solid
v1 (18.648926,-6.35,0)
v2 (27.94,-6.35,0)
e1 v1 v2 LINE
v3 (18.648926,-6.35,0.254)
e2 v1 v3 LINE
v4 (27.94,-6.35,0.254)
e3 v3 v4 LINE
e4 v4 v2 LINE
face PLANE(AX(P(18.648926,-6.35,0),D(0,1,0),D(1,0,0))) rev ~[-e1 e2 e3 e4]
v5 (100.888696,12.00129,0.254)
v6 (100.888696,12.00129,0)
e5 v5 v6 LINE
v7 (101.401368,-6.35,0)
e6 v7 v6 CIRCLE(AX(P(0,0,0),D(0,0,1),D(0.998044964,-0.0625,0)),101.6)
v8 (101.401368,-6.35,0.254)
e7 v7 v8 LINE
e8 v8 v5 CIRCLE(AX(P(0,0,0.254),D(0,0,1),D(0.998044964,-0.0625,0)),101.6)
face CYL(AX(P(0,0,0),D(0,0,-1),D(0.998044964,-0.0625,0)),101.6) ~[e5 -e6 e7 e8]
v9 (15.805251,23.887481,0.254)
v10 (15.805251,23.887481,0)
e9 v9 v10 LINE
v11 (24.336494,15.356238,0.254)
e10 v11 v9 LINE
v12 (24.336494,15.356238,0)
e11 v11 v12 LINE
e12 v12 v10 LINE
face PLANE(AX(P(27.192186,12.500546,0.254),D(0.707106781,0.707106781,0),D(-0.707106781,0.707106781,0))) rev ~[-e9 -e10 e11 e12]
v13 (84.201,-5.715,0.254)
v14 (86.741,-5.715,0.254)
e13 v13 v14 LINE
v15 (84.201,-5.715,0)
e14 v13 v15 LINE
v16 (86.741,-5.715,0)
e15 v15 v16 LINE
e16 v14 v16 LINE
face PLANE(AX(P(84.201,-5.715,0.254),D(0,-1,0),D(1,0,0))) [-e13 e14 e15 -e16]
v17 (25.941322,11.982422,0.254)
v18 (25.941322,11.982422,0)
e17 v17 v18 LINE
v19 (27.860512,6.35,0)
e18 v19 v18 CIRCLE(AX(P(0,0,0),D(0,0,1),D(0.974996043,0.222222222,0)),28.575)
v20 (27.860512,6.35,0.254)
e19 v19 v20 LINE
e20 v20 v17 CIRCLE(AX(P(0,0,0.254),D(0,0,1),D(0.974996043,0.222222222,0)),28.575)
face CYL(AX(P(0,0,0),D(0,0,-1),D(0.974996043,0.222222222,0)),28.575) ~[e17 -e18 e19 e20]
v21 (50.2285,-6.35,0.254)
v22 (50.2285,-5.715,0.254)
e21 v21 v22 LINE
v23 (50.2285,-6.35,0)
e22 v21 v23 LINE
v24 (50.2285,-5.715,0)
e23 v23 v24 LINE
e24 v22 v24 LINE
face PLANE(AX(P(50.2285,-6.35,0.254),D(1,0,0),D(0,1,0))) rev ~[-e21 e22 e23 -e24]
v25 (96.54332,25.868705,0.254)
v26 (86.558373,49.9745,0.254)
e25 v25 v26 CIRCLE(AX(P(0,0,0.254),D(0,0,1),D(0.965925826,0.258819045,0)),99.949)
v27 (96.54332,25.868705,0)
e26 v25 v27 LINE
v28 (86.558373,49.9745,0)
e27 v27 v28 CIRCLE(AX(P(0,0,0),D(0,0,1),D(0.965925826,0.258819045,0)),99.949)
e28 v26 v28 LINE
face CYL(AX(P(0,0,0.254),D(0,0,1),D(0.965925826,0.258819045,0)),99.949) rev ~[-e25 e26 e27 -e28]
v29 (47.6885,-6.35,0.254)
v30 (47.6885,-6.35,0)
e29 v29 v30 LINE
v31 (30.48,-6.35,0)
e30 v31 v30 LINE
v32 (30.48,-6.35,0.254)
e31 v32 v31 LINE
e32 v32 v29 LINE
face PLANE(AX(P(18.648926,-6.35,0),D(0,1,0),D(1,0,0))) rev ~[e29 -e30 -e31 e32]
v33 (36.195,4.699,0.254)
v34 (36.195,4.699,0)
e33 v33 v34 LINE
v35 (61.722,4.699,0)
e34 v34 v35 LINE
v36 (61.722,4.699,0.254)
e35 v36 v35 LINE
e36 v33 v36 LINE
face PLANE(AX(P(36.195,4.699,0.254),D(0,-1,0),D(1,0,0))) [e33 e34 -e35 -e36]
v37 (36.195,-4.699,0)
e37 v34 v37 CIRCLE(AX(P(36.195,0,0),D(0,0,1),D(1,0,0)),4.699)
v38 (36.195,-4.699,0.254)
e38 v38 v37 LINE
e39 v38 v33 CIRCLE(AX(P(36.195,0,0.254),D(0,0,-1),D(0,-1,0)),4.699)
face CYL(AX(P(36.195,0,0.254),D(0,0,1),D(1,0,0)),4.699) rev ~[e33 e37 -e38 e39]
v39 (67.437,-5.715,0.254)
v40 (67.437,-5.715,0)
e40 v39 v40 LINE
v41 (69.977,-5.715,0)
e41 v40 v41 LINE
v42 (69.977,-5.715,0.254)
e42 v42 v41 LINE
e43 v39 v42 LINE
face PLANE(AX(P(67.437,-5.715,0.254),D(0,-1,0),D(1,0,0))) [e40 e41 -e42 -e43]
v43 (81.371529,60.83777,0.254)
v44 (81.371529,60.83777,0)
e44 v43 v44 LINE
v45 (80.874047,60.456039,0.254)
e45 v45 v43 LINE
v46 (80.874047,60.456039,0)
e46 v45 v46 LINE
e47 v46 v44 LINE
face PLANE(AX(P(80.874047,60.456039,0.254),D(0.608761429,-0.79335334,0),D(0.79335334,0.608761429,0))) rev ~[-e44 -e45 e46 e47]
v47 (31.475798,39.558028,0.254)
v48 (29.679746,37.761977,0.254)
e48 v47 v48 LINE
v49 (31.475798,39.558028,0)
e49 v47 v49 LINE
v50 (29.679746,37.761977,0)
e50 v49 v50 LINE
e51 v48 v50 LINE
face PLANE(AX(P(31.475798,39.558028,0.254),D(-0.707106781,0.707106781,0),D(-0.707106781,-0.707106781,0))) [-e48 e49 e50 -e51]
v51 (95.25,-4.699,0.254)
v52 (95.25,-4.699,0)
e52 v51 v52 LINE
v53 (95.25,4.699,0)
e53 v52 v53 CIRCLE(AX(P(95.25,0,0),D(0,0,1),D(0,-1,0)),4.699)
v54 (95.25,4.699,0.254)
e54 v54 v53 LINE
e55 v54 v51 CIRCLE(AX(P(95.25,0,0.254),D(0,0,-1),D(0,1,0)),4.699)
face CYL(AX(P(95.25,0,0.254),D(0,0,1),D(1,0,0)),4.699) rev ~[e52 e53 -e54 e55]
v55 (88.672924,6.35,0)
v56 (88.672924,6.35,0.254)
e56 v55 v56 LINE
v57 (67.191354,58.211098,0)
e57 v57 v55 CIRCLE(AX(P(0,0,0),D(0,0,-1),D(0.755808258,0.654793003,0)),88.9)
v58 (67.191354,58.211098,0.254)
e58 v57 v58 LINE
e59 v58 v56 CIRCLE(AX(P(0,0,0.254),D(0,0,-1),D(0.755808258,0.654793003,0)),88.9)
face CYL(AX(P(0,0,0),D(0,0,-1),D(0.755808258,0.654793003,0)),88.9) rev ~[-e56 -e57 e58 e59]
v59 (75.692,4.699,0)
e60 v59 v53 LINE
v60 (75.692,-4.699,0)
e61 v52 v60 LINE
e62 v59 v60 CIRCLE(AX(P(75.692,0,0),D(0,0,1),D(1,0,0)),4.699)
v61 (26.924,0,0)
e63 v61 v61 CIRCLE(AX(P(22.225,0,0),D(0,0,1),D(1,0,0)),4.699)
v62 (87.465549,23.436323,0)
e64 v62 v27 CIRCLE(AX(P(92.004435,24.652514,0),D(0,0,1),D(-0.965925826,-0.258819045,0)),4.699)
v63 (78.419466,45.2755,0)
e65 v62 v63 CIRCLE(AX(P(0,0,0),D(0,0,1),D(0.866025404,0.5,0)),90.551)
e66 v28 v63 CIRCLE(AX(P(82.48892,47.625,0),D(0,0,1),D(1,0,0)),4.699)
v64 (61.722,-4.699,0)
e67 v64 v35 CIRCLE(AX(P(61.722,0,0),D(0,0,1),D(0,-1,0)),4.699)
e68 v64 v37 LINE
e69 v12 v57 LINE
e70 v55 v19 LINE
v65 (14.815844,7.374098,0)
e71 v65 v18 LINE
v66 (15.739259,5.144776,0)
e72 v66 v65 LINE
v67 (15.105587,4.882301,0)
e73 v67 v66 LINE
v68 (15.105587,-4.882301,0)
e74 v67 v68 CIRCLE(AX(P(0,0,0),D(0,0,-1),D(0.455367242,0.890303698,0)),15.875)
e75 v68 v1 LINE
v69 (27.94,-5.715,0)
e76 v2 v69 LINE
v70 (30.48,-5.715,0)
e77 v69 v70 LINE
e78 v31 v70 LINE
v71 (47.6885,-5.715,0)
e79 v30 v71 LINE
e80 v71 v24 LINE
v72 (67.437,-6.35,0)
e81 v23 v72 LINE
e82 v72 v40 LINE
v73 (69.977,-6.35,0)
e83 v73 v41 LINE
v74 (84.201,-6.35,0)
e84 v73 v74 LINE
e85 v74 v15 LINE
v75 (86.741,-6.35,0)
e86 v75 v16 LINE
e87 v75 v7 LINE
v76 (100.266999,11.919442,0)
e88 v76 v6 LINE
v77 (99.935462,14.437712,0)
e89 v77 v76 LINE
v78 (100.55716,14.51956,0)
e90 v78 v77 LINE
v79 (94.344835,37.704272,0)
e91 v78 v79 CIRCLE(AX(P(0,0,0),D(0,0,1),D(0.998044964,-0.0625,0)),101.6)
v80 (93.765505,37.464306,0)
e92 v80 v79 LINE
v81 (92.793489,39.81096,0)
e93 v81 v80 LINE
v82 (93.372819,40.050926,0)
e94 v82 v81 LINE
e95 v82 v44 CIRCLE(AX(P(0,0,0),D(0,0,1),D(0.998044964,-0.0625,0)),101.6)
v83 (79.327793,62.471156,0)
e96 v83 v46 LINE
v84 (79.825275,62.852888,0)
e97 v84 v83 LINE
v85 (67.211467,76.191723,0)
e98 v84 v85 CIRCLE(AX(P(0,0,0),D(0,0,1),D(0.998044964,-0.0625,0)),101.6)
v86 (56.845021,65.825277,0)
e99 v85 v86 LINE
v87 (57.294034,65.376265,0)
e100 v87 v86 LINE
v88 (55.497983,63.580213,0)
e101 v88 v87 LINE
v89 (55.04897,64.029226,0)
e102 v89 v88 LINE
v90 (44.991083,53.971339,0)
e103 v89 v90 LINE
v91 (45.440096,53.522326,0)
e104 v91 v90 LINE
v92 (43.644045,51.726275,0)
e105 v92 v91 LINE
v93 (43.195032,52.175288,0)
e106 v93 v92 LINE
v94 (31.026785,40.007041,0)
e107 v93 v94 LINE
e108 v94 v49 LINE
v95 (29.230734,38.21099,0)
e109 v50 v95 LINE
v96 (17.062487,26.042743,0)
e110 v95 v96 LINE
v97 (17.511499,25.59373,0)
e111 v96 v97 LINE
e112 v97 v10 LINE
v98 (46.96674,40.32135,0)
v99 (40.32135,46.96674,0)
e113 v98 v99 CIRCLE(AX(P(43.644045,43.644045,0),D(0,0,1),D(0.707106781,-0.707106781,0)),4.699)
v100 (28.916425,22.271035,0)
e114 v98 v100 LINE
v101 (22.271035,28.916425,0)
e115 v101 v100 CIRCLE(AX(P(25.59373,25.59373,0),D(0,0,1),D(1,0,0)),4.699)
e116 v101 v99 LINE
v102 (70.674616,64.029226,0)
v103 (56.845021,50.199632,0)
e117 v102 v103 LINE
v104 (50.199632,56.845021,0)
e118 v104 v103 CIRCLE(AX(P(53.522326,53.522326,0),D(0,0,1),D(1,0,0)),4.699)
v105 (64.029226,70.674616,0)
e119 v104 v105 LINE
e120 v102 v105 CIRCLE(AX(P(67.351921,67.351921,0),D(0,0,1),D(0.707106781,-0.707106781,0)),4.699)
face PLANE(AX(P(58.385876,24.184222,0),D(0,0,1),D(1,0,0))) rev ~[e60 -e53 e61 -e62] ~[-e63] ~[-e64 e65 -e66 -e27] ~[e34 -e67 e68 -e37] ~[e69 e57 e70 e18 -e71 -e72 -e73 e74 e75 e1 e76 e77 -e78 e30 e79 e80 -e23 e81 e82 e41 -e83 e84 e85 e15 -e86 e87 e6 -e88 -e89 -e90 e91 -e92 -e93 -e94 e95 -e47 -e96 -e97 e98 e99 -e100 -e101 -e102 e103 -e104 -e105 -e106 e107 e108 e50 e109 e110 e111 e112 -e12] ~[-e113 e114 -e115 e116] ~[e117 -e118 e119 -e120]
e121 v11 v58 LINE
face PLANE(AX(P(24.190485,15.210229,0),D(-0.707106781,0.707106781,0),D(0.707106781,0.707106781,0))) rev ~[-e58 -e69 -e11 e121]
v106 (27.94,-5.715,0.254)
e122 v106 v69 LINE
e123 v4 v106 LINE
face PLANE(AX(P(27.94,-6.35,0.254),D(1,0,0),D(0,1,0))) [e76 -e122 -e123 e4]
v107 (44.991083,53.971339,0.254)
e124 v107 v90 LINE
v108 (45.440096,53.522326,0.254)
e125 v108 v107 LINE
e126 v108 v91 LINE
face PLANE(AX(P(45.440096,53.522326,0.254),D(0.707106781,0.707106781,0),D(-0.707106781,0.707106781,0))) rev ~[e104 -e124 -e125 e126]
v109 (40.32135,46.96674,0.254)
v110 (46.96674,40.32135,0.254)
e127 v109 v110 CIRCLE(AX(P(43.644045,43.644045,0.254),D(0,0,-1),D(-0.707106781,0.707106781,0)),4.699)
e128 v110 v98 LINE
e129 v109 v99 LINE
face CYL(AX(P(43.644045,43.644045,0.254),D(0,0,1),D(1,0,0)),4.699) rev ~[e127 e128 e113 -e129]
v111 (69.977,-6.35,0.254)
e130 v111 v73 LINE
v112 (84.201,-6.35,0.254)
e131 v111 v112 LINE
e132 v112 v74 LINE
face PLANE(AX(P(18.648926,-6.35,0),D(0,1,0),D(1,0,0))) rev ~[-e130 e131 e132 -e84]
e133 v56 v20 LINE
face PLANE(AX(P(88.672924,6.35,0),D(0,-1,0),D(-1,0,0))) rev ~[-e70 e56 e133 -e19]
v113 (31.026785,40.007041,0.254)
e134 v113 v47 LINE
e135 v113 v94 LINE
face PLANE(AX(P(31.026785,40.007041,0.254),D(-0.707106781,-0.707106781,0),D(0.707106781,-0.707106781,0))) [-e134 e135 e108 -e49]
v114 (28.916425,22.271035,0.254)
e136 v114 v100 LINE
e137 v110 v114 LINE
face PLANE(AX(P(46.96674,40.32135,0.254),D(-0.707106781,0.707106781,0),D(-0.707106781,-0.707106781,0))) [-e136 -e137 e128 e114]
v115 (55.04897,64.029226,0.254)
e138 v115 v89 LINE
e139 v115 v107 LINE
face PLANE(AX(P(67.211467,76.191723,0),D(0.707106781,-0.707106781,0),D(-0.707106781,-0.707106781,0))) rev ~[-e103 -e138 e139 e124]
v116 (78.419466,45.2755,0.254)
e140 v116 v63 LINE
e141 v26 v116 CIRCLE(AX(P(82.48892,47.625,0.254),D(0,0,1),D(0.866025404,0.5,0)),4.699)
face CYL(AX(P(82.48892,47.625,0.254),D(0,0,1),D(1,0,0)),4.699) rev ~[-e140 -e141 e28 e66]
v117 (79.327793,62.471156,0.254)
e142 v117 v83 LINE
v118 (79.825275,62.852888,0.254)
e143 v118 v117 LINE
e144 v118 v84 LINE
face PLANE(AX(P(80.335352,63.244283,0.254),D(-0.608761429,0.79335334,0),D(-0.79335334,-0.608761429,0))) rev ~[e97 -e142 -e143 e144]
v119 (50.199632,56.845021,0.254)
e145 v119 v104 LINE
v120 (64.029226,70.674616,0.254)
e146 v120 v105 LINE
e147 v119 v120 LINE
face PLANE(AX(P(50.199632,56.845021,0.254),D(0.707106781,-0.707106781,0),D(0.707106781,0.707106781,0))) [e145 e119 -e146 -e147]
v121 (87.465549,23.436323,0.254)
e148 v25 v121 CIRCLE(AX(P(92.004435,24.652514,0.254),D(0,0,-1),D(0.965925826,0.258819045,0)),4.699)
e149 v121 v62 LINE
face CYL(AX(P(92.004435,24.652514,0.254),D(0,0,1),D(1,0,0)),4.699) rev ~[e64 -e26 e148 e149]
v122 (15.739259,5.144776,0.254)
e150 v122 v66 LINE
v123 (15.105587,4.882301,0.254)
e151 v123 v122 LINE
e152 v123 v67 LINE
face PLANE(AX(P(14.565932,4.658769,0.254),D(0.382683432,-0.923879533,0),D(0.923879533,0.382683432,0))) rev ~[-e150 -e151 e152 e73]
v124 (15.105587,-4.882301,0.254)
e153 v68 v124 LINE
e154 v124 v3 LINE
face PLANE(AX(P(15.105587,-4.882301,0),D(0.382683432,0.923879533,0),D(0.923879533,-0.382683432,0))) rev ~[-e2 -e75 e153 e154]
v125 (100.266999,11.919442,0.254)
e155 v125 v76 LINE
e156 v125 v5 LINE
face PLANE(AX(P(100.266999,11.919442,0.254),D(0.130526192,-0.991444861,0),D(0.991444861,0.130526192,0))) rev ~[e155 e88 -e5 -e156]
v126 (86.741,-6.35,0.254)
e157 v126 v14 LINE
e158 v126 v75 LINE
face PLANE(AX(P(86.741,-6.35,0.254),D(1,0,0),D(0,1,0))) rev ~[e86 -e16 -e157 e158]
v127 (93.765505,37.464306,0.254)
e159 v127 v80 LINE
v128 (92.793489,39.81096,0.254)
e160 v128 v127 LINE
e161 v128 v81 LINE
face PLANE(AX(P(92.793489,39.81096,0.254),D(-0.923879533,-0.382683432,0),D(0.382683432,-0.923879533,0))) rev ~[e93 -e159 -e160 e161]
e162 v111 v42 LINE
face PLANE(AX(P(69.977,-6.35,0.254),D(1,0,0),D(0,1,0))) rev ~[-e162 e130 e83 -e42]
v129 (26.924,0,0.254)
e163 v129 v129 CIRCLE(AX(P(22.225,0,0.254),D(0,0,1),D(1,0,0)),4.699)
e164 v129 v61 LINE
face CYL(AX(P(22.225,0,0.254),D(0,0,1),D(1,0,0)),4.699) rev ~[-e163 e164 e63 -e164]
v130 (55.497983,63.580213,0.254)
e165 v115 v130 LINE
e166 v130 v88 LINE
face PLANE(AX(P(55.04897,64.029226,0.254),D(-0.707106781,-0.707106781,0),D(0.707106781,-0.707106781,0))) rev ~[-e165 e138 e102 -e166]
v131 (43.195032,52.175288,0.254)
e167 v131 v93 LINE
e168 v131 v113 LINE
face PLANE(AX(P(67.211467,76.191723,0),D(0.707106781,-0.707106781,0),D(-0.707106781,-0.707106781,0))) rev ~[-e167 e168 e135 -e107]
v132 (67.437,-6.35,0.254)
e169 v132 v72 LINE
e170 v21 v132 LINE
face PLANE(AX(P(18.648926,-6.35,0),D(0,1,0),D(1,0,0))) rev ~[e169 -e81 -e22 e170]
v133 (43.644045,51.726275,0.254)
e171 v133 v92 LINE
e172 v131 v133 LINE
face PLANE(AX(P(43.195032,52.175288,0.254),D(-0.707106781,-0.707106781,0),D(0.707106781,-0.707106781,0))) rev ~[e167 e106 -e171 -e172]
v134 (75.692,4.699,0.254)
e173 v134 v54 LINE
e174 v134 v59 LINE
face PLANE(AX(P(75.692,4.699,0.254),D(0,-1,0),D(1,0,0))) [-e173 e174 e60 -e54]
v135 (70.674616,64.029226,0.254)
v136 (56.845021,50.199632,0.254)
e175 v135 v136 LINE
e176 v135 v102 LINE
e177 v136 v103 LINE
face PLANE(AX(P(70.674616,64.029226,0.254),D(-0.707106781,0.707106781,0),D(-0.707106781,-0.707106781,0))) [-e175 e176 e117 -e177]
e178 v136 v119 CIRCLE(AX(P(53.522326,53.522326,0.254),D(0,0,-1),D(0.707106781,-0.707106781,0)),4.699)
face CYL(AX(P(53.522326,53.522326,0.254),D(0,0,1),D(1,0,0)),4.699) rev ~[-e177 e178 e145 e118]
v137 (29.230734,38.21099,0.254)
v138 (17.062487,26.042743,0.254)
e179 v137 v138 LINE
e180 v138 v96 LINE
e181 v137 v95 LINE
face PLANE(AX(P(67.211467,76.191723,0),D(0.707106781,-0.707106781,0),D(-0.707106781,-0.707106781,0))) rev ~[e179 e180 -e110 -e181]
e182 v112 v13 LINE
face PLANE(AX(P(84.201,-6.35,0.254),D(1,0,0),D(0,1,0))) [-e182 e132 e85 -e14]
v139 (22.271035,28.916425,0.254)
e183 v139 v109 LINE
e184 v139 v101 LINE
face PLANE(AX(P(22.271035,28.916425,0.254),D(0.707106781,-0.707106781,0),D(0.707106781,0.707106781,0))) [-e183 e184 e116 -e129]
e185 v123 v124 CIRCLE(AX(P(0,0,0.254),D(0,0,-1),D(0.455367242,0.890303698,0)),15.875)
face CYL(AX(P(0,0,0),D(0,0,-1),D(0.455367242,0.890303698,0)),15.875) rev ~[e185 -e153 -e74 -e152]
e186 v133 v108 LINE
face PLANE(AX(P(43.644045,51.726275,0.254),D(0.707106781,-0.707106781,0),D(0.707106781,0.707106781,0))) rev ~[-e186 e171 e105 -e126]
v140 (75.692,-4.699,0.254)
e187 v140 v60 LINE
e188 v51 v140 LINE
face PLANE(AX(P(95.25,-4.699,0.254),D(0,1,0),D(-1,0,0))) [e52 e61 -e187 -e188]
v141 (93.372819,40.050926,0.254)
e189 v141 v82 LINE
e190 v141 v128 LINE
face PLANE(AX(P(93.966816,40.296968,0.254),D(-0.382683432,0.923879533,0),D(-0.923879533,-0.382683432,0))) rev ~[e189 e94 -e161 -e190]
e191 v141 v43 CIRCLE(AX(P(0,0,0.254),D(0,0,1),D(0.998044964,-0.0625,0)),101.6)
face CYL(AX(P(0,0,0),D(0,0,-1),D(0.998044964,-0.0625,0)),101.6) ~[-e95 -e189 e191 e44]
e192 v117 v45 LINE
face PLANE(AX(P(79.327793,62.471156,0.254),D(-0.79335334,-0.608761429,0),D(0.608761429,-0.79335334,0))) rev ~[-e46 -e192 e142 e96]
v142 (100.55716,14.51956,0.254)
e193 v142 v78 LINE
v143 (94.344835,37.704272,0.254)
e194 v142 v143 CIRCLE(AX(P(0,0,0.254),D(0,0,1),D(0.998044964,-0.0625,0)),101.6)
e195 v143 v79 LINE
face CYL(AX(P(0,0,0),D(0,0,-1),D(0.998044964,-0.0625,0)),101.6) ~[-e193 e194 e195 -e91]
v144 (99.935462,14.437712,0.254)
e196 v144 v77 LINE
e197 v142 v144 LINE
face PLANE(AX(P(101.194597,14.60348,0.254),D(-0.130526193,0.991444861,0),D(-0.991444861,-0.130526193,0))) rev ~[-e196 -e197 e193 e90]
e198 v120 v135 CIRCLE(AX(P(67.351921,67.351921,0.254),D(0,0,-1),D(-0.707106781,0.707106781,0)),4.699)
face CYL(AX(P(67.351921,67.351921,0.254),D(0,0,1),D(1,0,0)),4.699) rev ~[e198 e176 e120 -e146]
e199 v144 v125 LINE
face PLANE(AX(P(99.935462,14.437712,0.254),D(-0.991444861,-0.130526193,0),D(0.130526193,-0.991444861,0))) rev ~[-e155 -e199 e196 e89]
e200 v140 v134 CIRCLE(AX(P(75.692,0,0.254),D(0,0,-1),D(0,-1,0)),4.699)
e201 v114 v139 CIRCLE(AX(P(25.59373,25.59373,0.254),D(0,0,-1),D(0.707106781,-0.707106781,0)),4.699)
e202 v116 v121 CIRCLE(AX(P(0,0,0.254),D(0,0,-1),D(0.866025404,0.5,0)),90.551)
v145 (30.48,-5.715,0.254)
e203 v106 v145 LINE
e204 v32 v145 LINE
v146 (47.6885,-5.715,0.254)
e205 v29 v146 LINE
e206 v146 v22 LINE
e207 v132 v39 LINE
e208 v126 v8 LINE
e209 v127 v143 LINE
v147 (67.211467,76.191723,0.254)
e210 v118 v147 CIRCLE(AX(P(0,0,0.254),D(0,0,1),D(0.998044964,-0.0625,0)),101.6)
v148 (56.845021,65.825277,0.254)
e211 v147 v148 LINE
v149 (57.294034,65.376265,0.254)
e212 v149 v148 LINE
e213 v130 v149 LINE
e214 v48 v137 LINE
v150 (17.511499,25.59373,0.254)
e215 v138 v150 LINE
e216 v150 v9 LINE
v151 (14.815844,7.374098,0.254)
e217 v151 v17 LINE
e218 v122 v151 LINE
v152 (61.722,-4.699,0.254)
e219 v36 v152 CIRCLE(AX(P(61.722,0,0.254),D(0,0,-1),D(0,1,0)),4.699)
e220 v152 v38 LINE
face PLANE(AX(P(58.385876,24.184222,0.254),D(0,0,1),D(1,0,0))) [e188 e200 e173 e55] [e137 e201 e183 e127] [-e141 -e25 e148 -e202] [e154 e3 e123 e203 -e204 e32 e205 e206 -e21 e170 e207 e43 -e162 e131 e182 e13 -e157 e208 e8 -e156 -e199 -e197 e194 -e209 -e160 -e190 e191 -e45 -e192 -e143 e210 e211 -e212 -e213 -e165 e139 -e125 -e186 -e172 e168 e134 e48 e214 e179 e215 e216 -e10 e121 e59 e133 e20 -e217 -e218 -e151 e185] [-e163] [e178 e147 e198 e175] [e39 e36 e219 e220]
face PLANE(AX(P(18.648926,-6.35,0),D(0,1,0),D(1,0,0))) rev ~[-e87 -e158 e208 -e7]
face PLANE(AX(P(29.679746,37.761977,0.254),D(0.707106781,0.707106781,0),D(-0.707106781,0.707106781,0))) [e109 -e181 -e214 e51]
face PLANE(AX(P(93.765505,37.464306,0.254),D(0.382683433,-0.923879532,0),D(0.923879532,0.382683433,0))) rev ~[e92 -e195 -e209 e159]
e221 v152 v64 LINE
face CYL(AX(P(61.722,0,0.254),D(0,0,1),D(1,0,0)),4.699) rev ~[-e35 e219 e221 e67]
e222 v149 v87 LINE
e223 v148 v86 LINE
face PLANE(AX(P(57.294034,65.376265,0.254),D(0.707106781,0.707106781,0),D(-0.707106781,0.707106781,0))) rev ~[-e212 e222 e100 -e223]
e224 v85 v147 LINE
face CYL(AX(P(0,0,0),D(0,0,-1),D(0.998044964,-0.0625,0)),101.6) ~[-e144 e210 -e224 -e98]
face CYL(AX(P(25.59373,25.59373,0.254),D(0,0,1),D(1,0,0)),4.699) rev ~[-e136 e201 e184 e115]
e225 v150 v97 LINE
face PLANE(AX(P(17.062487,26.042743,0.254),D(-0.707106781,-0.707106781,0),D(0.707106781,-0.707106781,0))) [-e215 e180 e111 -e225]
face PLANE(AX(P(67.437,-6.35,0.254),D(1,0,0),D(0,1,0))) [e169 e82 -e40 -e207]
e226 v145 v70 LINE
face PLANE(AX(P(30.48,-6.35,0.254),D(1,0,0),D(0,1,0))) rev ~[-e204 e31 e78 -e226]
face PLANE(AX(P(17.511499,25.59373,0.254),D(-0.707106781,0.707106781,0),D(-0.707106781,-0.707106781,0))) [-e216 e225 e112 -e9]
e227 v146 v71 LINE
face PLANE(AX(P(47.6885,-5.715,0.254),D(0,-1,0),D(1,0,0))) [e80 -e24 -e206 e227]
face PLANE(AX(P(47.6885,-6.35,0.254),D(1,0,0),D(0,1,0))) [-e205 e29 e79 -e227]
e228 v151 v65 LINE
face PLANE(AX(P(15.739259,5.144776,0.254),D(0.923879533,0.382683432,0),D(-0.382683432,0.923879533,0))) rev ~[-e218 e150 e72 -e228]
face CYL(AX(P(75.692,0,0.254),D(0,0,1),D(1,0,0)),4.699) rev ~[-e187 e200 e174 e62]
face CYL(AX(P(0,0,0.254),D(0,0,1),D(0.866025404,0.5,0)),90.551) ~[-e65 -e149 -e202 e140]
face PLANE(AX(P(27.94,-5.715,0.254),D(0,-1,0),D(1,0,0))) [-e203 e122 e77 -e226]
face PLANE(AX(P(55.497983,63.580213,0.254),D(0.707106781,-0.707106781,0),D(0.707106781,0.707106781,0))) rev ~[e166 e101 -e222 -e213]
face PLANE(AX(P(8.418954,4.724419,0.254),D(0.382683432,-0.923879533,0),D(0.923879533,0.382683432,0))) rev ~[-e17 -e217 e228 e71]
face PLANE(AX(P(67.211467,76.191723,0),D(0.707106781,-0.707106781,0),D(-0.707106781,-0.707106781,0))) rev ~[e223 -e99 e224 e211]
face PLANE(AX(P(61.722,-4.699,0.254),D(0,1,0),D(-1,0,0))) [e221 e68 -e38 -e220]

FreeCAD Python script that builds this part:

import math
import FreeCAD as App
import Part
import Sketcher
from FreeCAD import Vector
Q = App.Units.Quantity


def add_polygon(sketch, points):
    """Adds a closed chain of lines whose ends are joined by coincident constraints."""
    first, n = sketch.GeometryCount, len(points)
    for a, b in zip(points, points[1:] + points[:1]):
        sketch.addGeometry(Part.LineSegment(App.Vector(*a, 0), App.Vector(*b, 0)), False)
    for i in range(n):
        sketch.addConstraint(Sketcher.Constraint("Coincident", first + i, 2, first + (i + 1) % n, 1))

doc = App.newDocument("Part")
params = doc.addObject("Spreadsheet::Sheet", "Params")
for row, (alias, value) in enumerate([
    ("sketch1_radius", "4 in"),
    ("sketch1_radius2", "3.5 in"),
    ("sketch1_radius3", "0.625 in"),
    ("sketch1_radius4", "1.125 in"),
    ("pad1_length", "0.01 in"),
    ("sketch2_diameter", "0.37 in"),
    ("sketch3_width", "0.1 in"),
    ("sketch3_length", "0.1 in"),
    ("sketch3_length2", "0.05 in"),
    ("sketch3_height", "0.025 in"),
    ("sketch3_length3", "0.025 in"),
    ("sketch4_radius", "0.185 in"),
    ("sketch4_radius2", "3.935 in"),
    ("sketch4_width", "0.77 in"),
    ("sketch4_length", "0.77 in"),
    ("sketch4_width2", "1.005 in"),
    ("sketch5_length", "0.8 in"),
], start=1):
    params.set(f"A{row}", alias)
    params.set(f"B{row}", "=" + value)
    params.setAlias(f"B{row}", alias)

body = doc.addObject("PartDesign::Body", "Body")

# Sketch on XY plane
sketch1 = body.newObject("Sketcher::SketchObject", "Sketch")
sketch1.AttachmentSupport = (doc.getObject("XY_Plane"), [""])
sketch1.MapMode = "FlatFace"
sketch1.addGeometry([
    Part.LineSegment(Vector(67.211467, 76.191723, 0), Vector(8.696654, 17.67691, 0)),  # 0
    Part.LineSegment(Vector(8.696654, 17.67691, 0), Vector(7.228955, 14.133571, 0)),  # 1
    Part.ArcOfCircle(Part.Circle(Vector(0, 0, 0), Vector(0, 0, 1), 15.875), math.radians(-17.911434), math.radians(62.911434)),  # 2
    Part.LineSegment(Vector(15.105587, -4.882301, 0), Vector(18.648926, -6.35, 0)),  # 3
    Part.LineSegment(Vector(18.648926, -6.35, 0), Vector(101.401368, -6.35, 0)),  # 4
    Part.ArcOfCircle(Part.Circle(Vector(0, 0, 0), Vector(0, 0, 1), 101.6), math.radians(-3.583322), math.radians(48.583322)),  # 5
    Part.ArcOfCircle(Part.Circle(Vector(0, 0, 0), Vector(0, 0, 1), 88.9), math.radians(4.096044), math.radians(40.903956)),  # 6
    Part.LineSegment(Vector(88.672924, 6.35, 0), Vector(27.860512, 6.35, 0)),  # 7
    Part.ArcOfCircle(Part.Circle(Vector(0, 0, 0), Vector(0, 0, 1), 28.575), math.radians(12.839588), math.radians(32.160412)),  # 8
    Part.LineSegment(Vector(24.190485, 15.210229, 0), Vector(67.191354, 58.211098, 0)),  # 9
], False)
sketch1.addConstraint([
    Sketcher.Constraint("Coincident", 0, 2, 1, 1),
    Sketcher.Constraint("Coincident", 1, 2, 2, 2),
    Sketcher.Constraint("Coincident", 2, 1, 3, 1),
    Sketcher.Constraint("Coincident", 3, 2, 4, 1),
    Sketcher.Constraint("Coincident", 4, 2, 5, 1),
    Sketcher.Constraint("Coincident", 5, 2, 0, 1),
    Sketcher.Constraint("Coincident", 6, 1, 7, 1),
    Sketcher.Constraint("Coincident", 7, 2, 8, 1),
    Sketcher.Constraint("Coincident", 8, 2, 9, 1),
    Sketcher.Constraint("Coincident", 9, 2, 6, 2),
    Sketcher.Constraint("Horizontal", 4),
    Sketcher.Constraint("Horizontal", 7),
    Sketcher.Constraint("Coincident", 2, 3, -1, 1),
    Sketcher.Constraint("Coincident", 5, 3, -1, 1),
    Sketcher.Constraint("Coincident", 6, 3, -1, 1),
    Sketcher.Constraint("Coincident", 8, 3, -1, 1),
    Sketcher.Constraint("Perpendicular", 1, 3),
    Sketcher.Constraint("Parallel", 0, 9),
    Sketcher.Constraint("Equal", 1, 3),
    Sketcher.Constraint("Radius", 5, Q("4 in")),
    Sketcher.Constraint("Radius", 6, Q("3.5 in")),
    Sketcher.Constraint("Angle", 0, Q("-135 deg")),
    Sketcher.Constraint("Radius", 2, Q("0.625 in")),
    Sketcher.Constraint("Radius", 8, Q("1.125 in")),
    Sketcher.Constraint("Angle", 1, Q("-112.5 deg")),
    Sketcher.Constraint("DistanceY", 4, 2, 6, 1, Q("0.5 in")),
    Sketcher.Constraint("DistanceY", 3, 2, -1, 1, Q("0.25 in")),
    Sketcher.Constraint("DistanceY", 2, 1, -1, 1, Q("4.882301 mm")),
    Sketcher.Constraint("DistanceY", -1, 1, 9, 2, Q("58.211098 mm")),
    Sketcher.Constraint("DistanceX", 5, 2, 4, 2, Q("34.189901 mm")),
])
sketch1.setExpression("Constraints[19]", "Params.sketch1_radius")
sketch1.setExpression("Constraints[20]", "Params.sketch1_radius2")
sketch1.setExpression("Constraints[22]", "Params.sketch1_radius3")
sketch1.setExpression("Constraints[23]", "Params.sketch1_radius4")
pad1 = body.newObject("PartDesign::Pad", "Pad")
pad1.Profile = sketch1
pad1.setExpression("Length", "Params.pad1_length")

# Sketch on XY plane
sketch2 = body.newObject("Sketcher::SketchObject", "Sketch001")
sketch2.AttachmentSupport = (doc.getObject("XY_Plane"), [""])
sketch2.MapMode = "FlatFace"
sketch2.AttachmentOffset = App.Placement(Vector(0, 0, 0.01 * 25.4), App.Rotation())
sketch2.addGeometry([
    Part.Circle(Vector(22.225, 0, 0), Vector(0, 0, 1), 4.699),  # 0
    Part.Circle(Vector(36.195, 0, 0), Vector(0, 0, 1), 4.699),  # 1
    Part.Circle(Vector(61.722, 0, 0), Vector(0, 0, 1), 4.699),  # 2
    Part.Circle(Vector(75.692, 0, 0), Vector(0, 0, 1), 4.699),  # 3
    Part.Circle(Vector(95.25, 0, 0), Vector(0, 0, 1), 4.699),  # 4
    Part.Circle(Vector(15.715448, 15.715448, 0), Vector(0, 0, 1), 4.699),  # 5
    Part.Circle(Vector(25.59373, 25.59373, 0), Vector(0, 0, 1), 4.699),  # 6
    Part.Circle(Vector(43.644045, 43.644045, 0), Vector(0, 0, 1), 4.699),  # 7
    Part.Circle(Vector(53.522326, 53.522326, 0), Vector(0, 0, 1), 4.699),  # 8
    Part.Circle(Vector(92.004435, 24.652514, 0), Vector(0, 0, 1), 4.699),  # 9
    Part.Circle(Vector(82.48892, 47.625, 0), Vector(0, 0, 1), 4.699),  # 10
    Part.Circle(Vector(67.351921, 67.351921, 0), Vector(0, 0, 1), 4.699),  # 11
], False)
sketch2.addConstraint([
    Sketcher.Constraint("Equal", 0, 1),
    Sketcher.Constraint("Equal", 1, 2),
    Sketcher.Constraint("Equal", 2, 3),
    Sketcher.Constraint("Equal", 3, 4),
    Sketcher.Constraint("Equal", 4, 5),
    Sketcher.Constraint("Equal", 5, 6),
    Sketcher.Constraint("Equal", 6, 7),
    Sketcher.Constraint("Equal", 7, 8),
    Sketcher.Constraint("Equal", 8, 9),
    Sketcher.Constraint("Equal", 9, 10),
    Sketcher.Constraint("Equal", 10, 11),
    Sketcher.Constraint("PointOnObject", 0, 3, -1),
    Sketcher.Constraint("PointOnObject", 1, 3, -1),
    Sketcher.Constraint("PointOnObject", 2, 3, -1),
    Sketcher.Constraint("PointOnObject", 3, 3, -1),
    Sketcher.Constraint("PointOnObject", 4, 3, -1),
    Sketcher.Constraint("Diameter", 0, Q("0.37 in")),
    Sketcher.Constraint("DistanceX", -1, 1, 2, 3, Q("2.43 in")),
    Sketcher.Constraint("DistanceX", -1, 1, 3, 3, Q("2.98 in")),
    Sketcher.Constraint("DistanceX", -1, 1, 4, 3, Q("3.75 in")),
    Sketcher.Constraint("DistanceX", 0, 3, 1, 3, Q("0.55 in")),
    Sketcher.Constraint("DistanceX", -1, 1, 0, 3, Q("0.875 in")),
    Sketcher.Constraint("DistanceY", -1, 1, 10, 3, Q("1.875 in")),
    Sketcher.Constraint("DistanceX", 11, 3, 10, 3, Q("15.136999 mm")),
    Sketcher.Constraint("DistanceX", -1, 1, 5, 3, Q("15.715448 mm")),
    Sketcher.Constraint("DistanceY", -1, 1, 5, 3, Q("15.715448 mm")),
    Sketcher.Constraint("DistanceX", -1, 1, 6, 3, Q("25.59373 mm")),
    Sketcher.Constraint("DistanceY", -1, 1, 6, 3, Q("25.59373 mm")),
    Sketcher.Constraint("DistanceX", -1, 1, 10, 3, Q("82.48892 mm")),
    Sketcher.Constraint("DistanceY", -1, 1, 11, 3, Q("67.351921 mm")),
    Sketcher.Constraint("DistanceX", 7, 3, 8, 3, Q("9.878282 mm")),
    Sketcher.Constraint("DistanceY", 7, 3, 8, 3, Q("9.878282 mm")),
    Sketcher.Constraint("DistanceX", 5, 3, 8, 3, Q("37.806878 mm")),
    Sketcher.Constraint("DistanceY", 5, 3, 8, 3, Q("37.806878 mm")),
    Sketcher.Constraint("DistanceX", 8, 3, 9, 3, Q("38.482108 mm")),
    Sketcher.Constraint("DistanceY", 9, 3, 7, 3, Q("18.991531 mm")),
])
sketch2.setExpression("Constraints[16]", "Params.sketch2_diameter")
pocket1 = body.newObject("PartDesign::Pocket", "Pocket")
pocket1.Profile = sketch2
pocket1.Type = "ThroughAll"

# Sketch on XY plane
sketch3 = body.newObject("Sketcher::SketchObject", "Sketch002")
sketch3.AttachmentSupport = (doc.getObject("XY_Plane"), [""])
sketch3.MapMode = "FlatFace"
sketch3.AttachmentOffset = App.Placement(Vector(0, 0, 0.01 * 25.4), App.Rotation())
add_polygon(sketch3, [(17.062487, 26.042743), (15.266435, 24.246692), (15.715448, 23.797679), (17.511499, 25.59373)])  # lines 0-3
add_polygon(sketch3, [(44.991083, 53.971339), (43.195032, 52.175288), (43.644045, 51.726275), (45.440096, 53.522326)])  # lines 4-7
add_polygon(sketch3, [(27.94, -5.715), (27.94, -6.35), (30.48, -6.35), (30.48, -5.715)])  # lines 8-11
add_polygon(sketch3, [(67.437, -5.715), (67.437, -6.35), (69.977, -6.35), (69.977, -5.715)])  # lines 12-15
add_polygon(sketch3, [(31.026785, 40.007041), (29.230734, 38.21099), (29.679746, 37.761977), (31.475798, 39.558028)])  # lines 16-19
add_polygon(sketch3, [(56.845021, 65.825277), (55.04897, 64.029226), (55.497983, 63.580213), (57.294034, 65.376265)])  # lines 20-23
add_polygon(sketch3, [(47.6885, -5.715), (47.6885, -6.35), (50.2285, -6.35), (50.2285, -5.715)])  # lines 24-27
add_polygon(sketch3, [(84.201, -5.715), (84.201, -6.35), (86.741, -6.35), (86.741, -5.715)])  # lines 28-31
add_polygon(sketch3, [(99.935462, 14.437712), (100.266999, 11.919442), (101.526134, 12.08521), (101.194597, 14.60348)])  # lines 32-35
add_polygon(sketch3, [(93.765505, 37.464306), (94.938832, 37.950314), (93.966816, 40.296968), (92.793489, 39.81096)])  # lines 36-39
add_polygon(sketch3, [(79.327793, 62.471156), (80.874047, 60.456039), (81.881606, 61.229166), (80.335352, 63.244283)])  # lines 40-43
add_polygon(sketch3, [(13.593916, 7.005423), (14.565932, 4.658769), (15.739259, 5.144776), (14.767243, 7.49143)])  # lines 44-47
sketch3.addConstraint([
    Sketcher.Constraint("Vertical", 8),
    Sketcher.Constraint("Horizontal", 9),
    Sketcher.Constraint("Vertical", 10),
    Sketcher.Constraint("Horizontal", 11),
    Sketcher.Constraint("Vertical", 12),
    Sketcher.Constraint("Horizontal", 13),
    Sketcher.Constraint("Vertical", 14),
    Sketcher.Constraint("Horizontal", 15),
    Sketcher.Constraint("Vertical", 24),
    Sketcher.Constraint("Horizontal", 25),
    Sketcher.Constraint("Vertical", 26),
    Sketcher.Constraint("Horizontal", 27),
    Sketcher.Constraint("Vertical", 28),
    Sketcher.Constraint("Horizontal", 29),
    Sketcher.Constraint("Vertical", 30),
    Sketcher.Constraint("Horizontal", 31),
    Sketcher.Constraint("Perpendicular", 0, 1),
    Sketcher.Constraint("Perpendicular", 1, 2),
    Sketcher.Constraint("Perpendicular", 2, 3),
    Sketcher.Constraint("Perpendicular", 3, 4),
    Sketcher.Constraint("Perpendicular", 4, 5),
    Sketcher.Constraint("Perpendicular", 5, 6),
    Sketcher.Constraint("Perpendicular", 6, 7),
    Sketcher.Constraint("Perpendicular", 7, 16),
    Sketcher.Constraint("Perpendicular", 16, 17),
    Sketcher.Constraint("Perpendicular", 17, 18),
    Sketcher.Constraint("Perpendicular", 18, 19),
    Sketcher.Constraint("Perpendicular", 19, 20),
    Sketcher.Constraint("Perpendicular", 20, 21),
    Sketcher.Constraint("Perpendicular", 21, 22),
    Sketcher.Constraint("Perpendicular", 22, 23),
    Sketcher.Constraint("Perpendicular", 32, 33),
    Sketcher.Constraint("Perpendicular", 33, 34),
    Sketcher.Constraint("Perpendicular", 34, 35),
    Sketcher.Constraint("Perpendicular", 36, 37),
    Sketcher.Constraint("Perpendicular", 37, 38),
    Sketcher.Constraint("Perpendicular", 38, 39),
    Sketcher.Constraint("Perpendicular", 40, 41),
    Sketcher.Constraint("Perpendicular", 41, 42),
    Sketcher.Constraint("Perpendicular", 42, 43),
    Sketcher.Constraint("Parallel", 39, 44),
    Sketcher.Constraint("Perpendicular", 44, 45),
    Sketcher.Constraint("Perpendicular", 45, 46),
    Sketcher.Constraint("Perpendicular", 46, 47),
    Sketcher.Constraint("Horizontal", 9, 2, 12, 2),
    Sketcher.Constraint("Horizontal", 11, 2, 14, 2),
    Sketcher.Constraint("Horizontal", 13, 2, 24, 2),
    Sketcher.Constraint("Horizontal", 15, 2, 26, 2),
    Sketcher.Constraint("Horizontal", 25, 2, 28, 2),
    Sketcher.Constraint("Horizontal", 27, 2, 30, 2),
    Sketcher.Constraint("Equal", 11, 13),
    Sketcher.Constraint("Equal", 15, 25),
    Sketcher.Constraint("Equal", 27, 29),
    Sketcher.Constraint("Equal", 2, 4),
    Sketcher.Constraint("Equal", 3, 5),
    Sketcher.Constraint("Equal", 6, 16),
    Sketcher.Constraint("Equal", 7, 17),
    Sketcher.Constraint("Equal", 18, 20),
    Sketcher.Constraint("Equal", 19, 21),
    Sketcher.Constraint("Equal", 22, 32),
    Sketcher.Constraint("Equal", 35, 36),
    Sketcher.Constraint("Equal", 34, 37),
    Sketcher.Constraint("Equal", 39, 40),
    Sketcher.Constraint("Equal", 38, 41),
    Sketcher.Constraint("Equal", 42, 44),
    Sketcher.Constraint("Equal", 43, 45),
    Sketcher.Constraint("DistanceX", 9, 1, 9, 2, Q("0.1 in")),
    Sketcher.Constraint("Angle", 0, Q("-135 deg")),
    Sketcher.Constraint("Distance", 0, Q("0.1 in")),
    Sketcher.Constraint("DistanceX", -1, 1, 8, 2, Q("1.1 in")),
    Sketcher.Constraint("Angle", 32, Q("-82.5 deg")),
    Sketcher.Constraint("Angle", 36, Q("22.5 deg")),
    Sketcher.Constraint("Angle", 40, Q("-52.5 deg")),
    Sketcher.Constraint("Distance", 33, Q("0.05 in")),
    Sketcher.Constraint("DistanceY", 8, 2, 8, 1, Q("0.025 in")),
    Sketcher.Constraint("DistanceY", 8, 2, -1, 1, Q("0.25 in")),
    Sketcher.Constraint("DistanceX", 13, 2, 28, 2, Q("0.56 in")),
    Sketcher.Constraint("Distance", 1, Q("0.025 in")),
    Sketcher.Constraint("DistanceX", -1, 1, 12, 2, Q("2.655 in")),
    Sketcher.Constraint("DistanceX", -1, 1, 24, 2, Q("1.8775 in")),
    Sketcher.Constraint("DistanceX", -1, 1, 2, 2, Q("17.511499 mm")),
    Sketcher.Constraint("DistanceX", -1, 1, 32, 2, Q("100.266999 mm")),
    Sketcher.Constraint("DistanceX", 16, 2, 4, 2, Q("13.964298 mm")),
    Sketcher.Constraint("DistanceY", 16, 2, 4, 2, Q("13.964298 mm")),
    Sketcher.Constraint("DistanceX", 0, 2, 16, 2, Q("13.964298 mm")),
    Sketcher.Constraint("DistanceY", 0, 2, 16, 2, Q("13.964298 mm")),
    Sketcher.Constraint("DistanceY", 6, 2, 20, 2, Q("10.5069 mm")),
    Sketcher.Constraint("DistanceX", 7, 2, 21, 2, Q("10.5069 mm")),
    Sketcher.Constraint("DistanceY", 35, 2, 36, 2, Q("23.512602 mm")),
    Sketcher.Constraint("DistanceX", 36, 2, 33, 2, Q("6.587302 mm")),
    Sketcher.Constraint("DistanceY", 37, 2, 41, 2, Q("20.932198 mm")),
    Sketcher.Constraint("DistanceY", 41, 2, 22, 2, Q("4.147099 mm")),
    Sketcher.Constraint("DistanceY", 46, 2, 2, 2, Q("18.102299 mm")),
    Sketcher.Constraint("DistanceY", -1, 1, 0, 2, Q("24.246692 mm")),
    Sketcher.Constraint("DistanceX", -1, 1, 42, 2, Q("80.335352 mm")),
    Sketcher.Constraint("DistanceX", -1, 1, 45, 2, Q("15.739259 mm")),
])
sketch3.setExpression("Constraints[114]", "Params.sketch3_width")
sketch3.setExpression("Constraints[116]", "Params.sketch3_length")
sketch3.setExpression("Constraints[121]", "Params.sketch3_length2")
sketch3.setExpression("Constraints[122]", "Params.sketch3_height")
sketch3.setExpression("Constraints[125]", "Params.sketch3_length3")
pocket2 = body.newObject("PartDesign::Pocket", "Pocket001")
pocket2.Profile = sketch3
pocket2.Type = "ThroughAll"

# Sketch on XY plane
sketch4 = body.newObject("Sketcher::SketchObject", "Sketch003")
sketch4.AttachmentSupport = (doc.getObject("XY_Plane"), [""])
sketch4.MapMode = "FlatFace"
sketch4.AttachmentOffset = App.Placement(Vector(0, 0, 0.01 * 25.4), App.Rotation())
sketch4.addGeometry([
    Part.LineSegment(Vector(40.32135, 46.96674, 0), Vector(22.271035, 28.916425, 0)),  # 0
    Part.ArcOfCircle(Part.Circle(Vector(25.59373, 25.59373, 0), Vector(0, 0, 1), 4.699), math.radians(135), math.radians(315)),  # 1
    Part.LineSegment(Vector(28.916425, 22.271035, 0), Vector(46.96674, 40.32135, 0)),  # 2
    Part.ArcOfCircle(Part.Circle(Vector(43.644045, 43.644045, 0), Vector(0, 0, 1), 4.699), math.radians(-45), math.radians(135)),  # 3
    Part.LineSegment(Vector(64.029226, 70.674616, 0), Vector(50.199632, 56.845021, 0)),  # 4
    Part.ArcOfCircle(Part.Circle(Vector(53.522326, 53.522326, 0), Vector(0, 0, 1), 4.699), math.radians(135), math.radians(315)),  # 5
    Part.LineSegment(Vector(56.845021, 50.199632, 0), Vector(70.674616, 64.029226, 0)),  # 6
    Part.ArcOfCircle(Part.Circle(Vector(67.351921, 67.351921, 0), Vector(0, 0, 1), 4.699), math.radians(-45), math.radians(135)),  # 7
    Part.LineSegment(Vector(36.195, -4.699, 0), Vector(61.722, -4.699, 0)),  # 8
    Part.ArcOfCircle(Part.Circle(Vector(61.722, 0, 0), Vector(0, 0, 1), 4.699), math.radians(-90), math.radians(90)),  # 9
    Part.LineSegment(Vector(61.722, 4.699, 0), Vector(36.195, 4.699, 0)),  # 10
    Part.ArcOfCircle(Part.Circle(Vector(36.195, 0, 0), Vector(0, 0, 1), 4.699), math.radians(90), math.radians(270)),  # 11
    Part.LineSegment(Vector(75.692, -4.699, 0), Vector(95.25, -4.699, 0)),  # 12
    Part.ArcOfCircle(Part.Circle(Vector(95.25, 0, 0), Vector(0, 0, 1), 4.699), math.radians(-90), math.radians(90)),  # 13
    Part.LineSegment(Vector(95.25, 4.699, 0), Vector(75.692, 4.699, 0)),  # 14
    Part.ArcOfCircle(Part.Circle(Vector(75.692, 0, 0), Vector(0, 0, 1), 4.699), math.radians(90), math.radians(270)),  # 15
    Part.ArcOfCircle(Part.Circle(Vector(0, 0, 0), Vector(0, 0, 1), 99.949), math.radians(15), math.radians(30)),  # 16
    Part.ArcOfCircle(Part.Circle(Vector(82.48892, 47.625, 0), Vector(0, 0, 1), 4.699), math.radians(30), math.radians(210)),  # 17
    Part.ArcOfCircle(Part.Circle(Vector(0, 0, 0), Vector(0, 0, 1), 90.551), math.radians(15), math.radians(30)),  # 18
    Part.ArcOfCircle(Part.Circle(Vector(92.004435, 24.652514, 0), Vector(0, 0, 1), 4.699), math.radians(-165), math.radians(15)),  # 19
], False)
sketch4.addConstraint([
    Sketcher.Constraint("Tangent", 0, 2, 1, 1),
    Sketcher.Constraint("Tangent", 1, 2, 2, 1),
    Sketcher.Constraint("Tangent", 2, 2, 3, 1),
    Sketcher.Constraint("Tangent", 3, 2, 0, 1),
    Sketcher.Constraint("Tangent", 4, 2, 5, 1),
    Sketcher.Constraint("Tangent", 5, 2, 6, 1),
    Sketcher.Constraint("Tangent", 6, 2, 7, 1),
    Sketcher.Constraint("Tangent", 7, 2, 4, 1),
    Sketcher.Constraint("Tangent", 8, 2, 9, 1),
    Sketcher.Constraint("Tangent", 9, 2, 10, 1),
    Sketcher.Constraint("Tangent", 10, 2, 11, 1),
    Sketcher.Constraint("Tangent", 11, 2, 8, 1),
    Sketcher.Constraint("Tangent", 12, 2, 13, 1),
    Sketcher.Constraint("Tangent", 13, 2, 14, 1),
    Sketcher.Constraint("Tangent", 14, 2, 15, 1),
    Sketcher.Constraint("Tangent", 15, 2, 12, 1),
    Sketcher.Constraint("Tangent", 16, 2, 17, 1),
    Sketcher.Constraint("Tangent", 17, 2, 18, 2),
    Sketcher.Constraint("Tangent", 18, 1, 19, 1),
    Sketcher.Constraint("Tangent", 19, 2, 16, 1),
    Sketcher.Constraint("Horizontal", 8),
    Sketcher.Constraint("Horizontal", 10),
    Sketcher.Constraint("Horizontal", 12),
    Sketcher.Constraint("Horizontal", 14),
    Sketcher.Constraint("Coincident", 16, 3, -1, 1),
    Sketcher.Constraint("Coincident", 18, 3, -1, 1),
    Sketcher.Constraint("Equal", 1, 3),
    Sketcher.Constraint("Equal", 3, 5),
    Sketcher.Constraint("Equal", 5, 7),
    Sketcher.Constraint("Equal", 7, 9),
    Sketcher.Constraint("Equal", 11, 13),
    Sketcher.Constraint("Equal", 15, 17),
    Sketcher.Constraint("PointOnObject", 9, 3, -1),
    Sketcher.Constraint("PointOnObject", 13, 3, -1),
    Sketcher.Constraint("Parallel", 2, 4),
    Sketcher.Constraint("Angle", 0, Q("-135 deg")),
    Sketcher.Constraint("Radius", 1, Q("0.185 in")),
    Sketcher.Constraint("Radius", 16, Q("3.935 in")),
    Sketcher.Constraint("DistanceX", 12, 1, 12, 2, Q("0.77 in")),
    Sketcher.Constraint("Distance", 4, Q("0.77 in")),
    Sketcher.Constraint("DistanceX", 8, 1, 8, 2, Q("1.005 in")),
    Sketcher.Constraint("DistanceX", -1, 1, 9, 3, Q("2.43 in")),
    Sketcher.Constraint("DistanceX", -1, 1, 13, 3, Q("3.75 in")),
    Sketcher.Constraint("Distance", 0, Q("1.005 in")),
    Sketcher.Constraint("DistanceY", -1, 1, 17, 3, Q("1.875 in")),
    Sketcher.Constraint("DistanceX", 7, 3, 17, 3, Q("15.136999 mm")),
    Sketcher.Constraint("DistanceX", 17, 3, 19, 2, Q("14.054401 mm")),
    Sketcher.Constraint("DistanceX", -1, 1, 1, 3, Q("25.59373 mm")),
    Sketcher.Constraint("DistanceY", -1, 1, 1, 3, Q("25.59373 mm")),
    Sketcher.Constraint("DistanceY", -1, 1, 7, 3, Q("67.351921 mm")),
])
sketch4.setExpression("Constraints[36]", "Params.sketch4_radius")
sketch4.setExpression("Constraints[37]", "Params.sketch4_radius2")
sketch4.setExpression("Constraints[38]", "Params.sketch4_width")
sketch4.setExpression("Constraints[39]", "Params.sketch4_length")
sketch4.setExpression("Constraints[40]", "Params.sketch4_width2")
pocket3 = body.newObject("PartDesign::Pocket", "Pocket002")
pocket3.Profile = sketch4
pocket3.Type = "ThroughAll"

# Sketch on XY plane
sketch5 = body.newObject("Sketcher::SketchObject", "Sketch004")
sketch5.AttachmentSupport = (doc.getObject("XY_Plane"), [""])
sketch5.MapMode = "FlatFace"
sketch5.AttachmentOffset = App.Placement(Vector(0, 0, 0.01 * 25.4), App.Rotation())
add_polygon(sketch5, [(8.418954, 4.724419), (27.192186, 12.500546), (12.823776, 26.868956), (-0.450904, 13.594276)])  # lines 0-3
sketch5.addConstraint([
    Sketcher.Constraint("Perpendicular", 1, 2),
    Sketcher.Constraint("Perpendicular", 2, 3),
    Sketcher.Constraint("Equal", 0, 1),
    Sketcher.Constraint("Angle", 1, Q("135 deg")),
    Sketcher.Constraint("Distance", 0, Q("0.8 in")),
    Sketcher.Constraint("Angle", 0, Q("22.5 deg")),
    Sketcher.Constraint("DistanceY", -1, 1, 3, 2, Q("4.724419 mm")),
    Sketcher.Constraint("DistanceX", -1, 1, 0, 2, Q("27.192186 mm")),
])
sketch5.setExpression("Constraints[8]", "Params.sketch5_length")
pocket4 = body.newObject("PartDesign::Pocket", "Pocket003")
pocket4.Profile = sketch5
pocket4.Type = "ThroughAll"

doc.recompute()
